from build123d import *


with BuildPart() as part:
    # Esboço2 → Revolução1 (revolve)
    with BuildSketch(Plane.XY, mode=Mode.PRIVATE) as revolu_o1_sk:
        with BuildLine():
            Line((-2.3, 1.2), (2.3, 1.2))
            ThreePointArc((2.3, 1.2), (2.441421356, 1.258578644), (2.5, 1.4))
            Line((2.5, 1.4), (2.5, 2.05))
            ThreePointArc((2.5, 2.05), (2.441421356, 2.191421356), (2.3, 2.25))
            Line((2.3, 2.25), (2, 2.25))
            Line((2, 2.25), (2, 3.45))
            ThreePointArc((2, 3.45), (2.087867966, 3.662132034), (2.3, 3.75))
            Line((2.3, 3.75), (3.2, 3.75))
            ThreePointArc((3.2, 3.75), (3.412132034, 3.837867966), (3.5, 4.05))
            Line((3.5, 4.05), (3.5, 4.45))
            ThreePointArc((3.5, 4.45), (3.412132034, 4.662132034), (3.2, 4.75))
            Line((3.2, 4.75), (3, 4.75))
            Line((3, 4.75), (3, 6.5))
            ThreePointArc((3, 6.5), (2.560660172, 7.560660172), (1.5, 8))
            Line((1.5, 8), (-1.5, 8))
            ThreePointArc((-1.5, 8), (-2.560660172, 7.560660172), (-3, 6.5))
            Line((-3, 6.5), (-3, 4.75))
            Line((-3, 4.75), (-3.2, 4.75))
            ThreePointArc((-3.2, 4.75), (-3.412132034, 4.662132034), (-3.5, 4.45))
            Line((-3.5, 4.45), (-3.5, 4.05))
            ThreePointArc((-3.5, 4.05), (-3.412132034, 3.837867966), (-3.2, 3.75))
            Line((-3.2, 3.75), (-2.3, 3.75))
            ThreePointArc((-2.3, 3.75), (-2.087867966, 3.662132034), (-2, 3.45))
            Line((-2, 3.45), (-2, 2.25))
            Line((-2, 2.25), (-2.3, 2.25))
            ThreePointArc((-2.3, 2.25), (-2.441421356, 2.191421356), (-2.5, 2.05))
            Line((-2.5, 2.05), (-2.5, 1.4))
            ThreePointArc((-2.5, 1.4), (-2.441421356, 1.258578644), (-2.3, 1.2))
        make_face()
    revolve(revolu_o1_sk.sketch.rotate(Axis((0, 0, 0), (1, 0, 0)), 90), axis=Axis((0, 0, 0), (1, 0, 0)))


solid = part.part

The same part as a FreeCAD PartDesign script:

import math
import FreeCAD as App
import Part
import Sketcher
from FreeCAD import Vector

doc = App.newDocument("Part")
params = doc.addObject("Spreadsheet::Sheet", "Params")
for row, (alias, value) in enumerate([
    ("sketch1_radius", "0.2 mm"),
    ("sketch1_radius2", "0.3 mm"),
    ("sketch1_radius3", "1.5 mm"),
    ("sketch1_width", "3 mm"),
    ("sketch1_width2", "4.6 mm"),
    ("revolution_angle", "360 deg"),
], start=1):
    params.set(f"A{row}", alias)
    params.set(f"B{row}", "=" + value)
    params.setAlias(f"B{row}", alias)

body = doc.addObject("PartDesign::Body", "Body")

# Sketch on XY plane
sketch1 = body.newObject("Sketcher::SketchObject", "Sketch")
sketch1.AttachmentSupport = (doc.getObject("XY_Plane"), [""])
sketch1.MapMode = "FlatFace"
sketch1.addGeometry([
    Part.LineSegment(Vector(-2.3, 1.2, 0), Vector(2.3, 1.2, 0)),  # 0
    Part.ArcOfCircle(Part.Circle(Vector(2.3, 1.4, 0), Vector(0, 0, 1), 0.2), math.radians(-90), math.radians(0)),  # 1
    Part.LineSegment(Vector(2.5, 1.4, 0), Vector(2.5, 2.05, 0)),  # 2
    Part.ArcOfCircle(Part.Circle(Vector(2.3, 2.05, 0), Vector(0, 0, 1), 0.2), math.radians(0), math.radians(90)),  # 3
    Part.LineSegment(Vector(2.3, 2.25, 0), Vector(2, 2.25, 0)),  # 4
    Part.LineSegment(Vector(2, 2.25, 0), Vector(2, 3.45, 0)),  # 5
    Part.ArcOfCircle(Part.Circle(Vector(2.3, 3.45, 0), Vector(0, 0, 1), 0.3), math.radians(90), math.radians(180)),  # 6
    Part.LineSegment(Vector(2.3, 3.75, 0), Vector(3.2, 3.75, 0)),  # 7
    Part.ArcOfCircle(Part.Circle(Vector(3.2, 4.05, 0), Vector(0, 0, 1), 0.3), math.radians(-90), math.radians(0)),  # 8
    Part.LineSegment(Vector(3.5, 4.05, 0), Vector(3.5, 4.45, 0)),  # 9
    Part.ArcOfCircle(Part.Circle(Vector(3.2, 4.45, 0), Vector(0, 0, 1), 0.3), math.radians(0), math.radians(90)),  # 10
    Part.LineSegment(Vector(3.2, 4.75, 0), Vector(3, 4.75, 0)),  # 11
    Part.LineSegment(Vector(3, 4.75, 0), Vector(3, 6.5, 0)),  # 12
    Part.ArcOfCircle(Part.Circle(Vector(1.5, 6.5, 0), Vector(0, 0, 1), 1.5), math.radians(0), math.radians(90)),  # 13
    Part.LineSegment(Vector(1.5, 8, 0), Vector(-1.5, 8, 0)),  # 14
    Part.ArcOfCircle(Part.Circle(Vector(-1.5, 6.5, 0), Vector(0, 0, 1), 1.5), math.radians(90), math.radians(180)),  # 15
    Part.LineSegment(Vector(-3, 6.5, 0), Vector(-3, 4.75, 0)),  # 16
    Part.LineSegment(Vector(-3, 4.75, 0), Vector(-3.2, 4.75, 0)),  # 17
    Part.ArcOfCircle(Part.Circle(Vector(-3.2, 4.45, 0), Vector(0, 0, 1), 0.3), math.radians(90), math.radians(180)),  # 18
    Part.LineSegment(Vector(-3.5, 4.45, 0), Vector(-3.5, 4.05, 0)),  # 19
    Part.ArcOfCircle(Part.Circle(Vector(-3.2, 4.05, 0), Vector(0, 0, 1), 0.3), math.radians(-180), math.radians(-90)),  # 20
    Part.LineSegment(Vector(-3.2, 3.75, 0), Vector(-2.3, 3.75, 0)),  # 21
    Part.ArcOfCircle(Part.Circle(Vector(-2.3, 3.45, 0), Vector(0, 0, 1), 0.3), math.radians(0), math.radians(90)),  # 22
    Part.LineSegment(Vector(-2, 3.45, 0), Vector(-2, 2.25, 0)),  # 23
    Part.LineSegment(Vector(-2, 2.25, 0), Vector(-2.3, 2.25, 0)),  # 24
    Part.ArcOfCircle(Part.Circle(Vector(-2.3, 2.05, 0), Vector(0, 0, 1), 0.2), math.radians(90), math.radians(180)),  # 25
    Part.LineSegment(Vector(-2.5, 2.05, 0), Vector(-2.5, 1.4, 0)),  # 26
    Part.ArcOfCircle(Part.Circle(Vector(-2.3, 1.4, 0), Vector(0, 0, 1), 0.2), math.radians(-180), math.radians(-90)),  # 27
], False)
sketch1.addConstraint([
    Sketcher.Constraint("Tangent", 0, 2, 1, 1),
    Sketcher.Constraint("Tangent", 1, 2, 2, 1),
    Sketcher.Constraint("Tangent", 2, 2, 3, 1),
    Sketcher.Constraint("Tangent", 3, 2, 4, 1),
    Sketcher.Constraint("Coincident", 4, 2, 5, 1),
    Sketcher.Constraint("Tangent", 5, 2, 6, 2),
    Sketcher.Constraint("Tangent", 6, 1, 7, 1),
    Sketcher.Constraint("Tangent", 7, 2, 8, 1),
    Sketcher.Constraint("Tangent", 8, 2, 9, 1),
    Sketcher.Constraint("Tangent", 9, 2, 10, 1),
    Sketcher.Constraint("Tangent", 10, 2, 11, 1),
    Sketcher.Constraint("Coincident", 11, 2, 12, 1),
    Sketcher.Constraint("Tangent", 12, 2, 13, 1),
    Sketcher.Constraint("Tangent", 13, 2, 14, 1),
    Sketcher.Constraint("Tangent", 14, 2, 15, 1),
    Sketcher.Constraint("Tangent", 15, 2, 16, 1),
    Sketcher.Constraint("Coincident", 16, 2, 17, 1),
    Sketcher.Constraint("Tangent", 17, 2, 18, 1),
    Sketcher.Constraint("Tangent", 18, 2, 19, 1),
    Sketcher.Constraint("Tangent", 19, 2, 20, 1),
    Sketcher.Constraint("Tangent", 20, 2, 21, 1),
    Sketcher.Constraint("Tangent", 21, 2, 22, 2),
    Sketcher.Constraint("Tangent", 22, 1, 23, 1),
    Sketcher.Constraint("Coincident", 23, 2, 24, 1),
    Sketcher.Constraint("Tangent", 24, 2, 25, 1),
    Sketcher.Constraint("Tangent", 25, 2, 26, 1),
    Sketcher.Constraint("Tangent", 26, 2, 27, 1),
    Sketcher.Constraint("Tangent", 27, 2, 0, 1),
    Sketcher.Constraint("Horizontal", 0),
    Sketcher.Constraint("Vertical", 2),
    Sketcher.Constraint("Horizontal", 4),
    Sketcher.Constraint("Vertical", 5),
    Sketcher.Constraint("Horizontal", 7),
    Sketcher.Constraint("Vertical", 9),
    Sketcher.Constraint("Horizontal", 11),
    Sketcher.Constraint("Vertical", 12),
    Sketcher.Constraint("Horizontal", 14),
    Sketcher.Constraint("Vertical", 16),
    Sketcher.Constraint("Horizontal", 17),
    Sketcher.Constraint("Vertical", 19),
    Sketcher.Constraint("Horizontal", 21),
    Sketcher.Constraint("Vertical", 23),
    Sketcher.Constraint("Horizontal", 24),
    Sketcher.Constraint("Vertical", 26),
    Sketcher.Constraint("Equal", 1, 3),
    Sketcher.Constraint("Equal", 6, 8),
    Sketcher.Constraint("Equal", 8, 10),
    Sketcher.Constraint("Equal", 13, 15),
    Sketcher.Constraint("Equal", 10, 18),
    Sketcher.Constraint("Equal", 18, 20),
    Sketcher.Constraint("Equal", 20, 22),
    Sketcher.Constraint("Equal", 3, 25),
    Sketcher.Constraint("Equal", 25, 27),
    Sketcher.Constraint("Symmetric", 10, 3, 18, 3, -2),
    Sketcher.Constraint("Symmetric", 6, 3, 22, 3, -2),
    Sketcher.Constraint("Symmetric", 3, 3, 25, 3, -2),
    Sketcher.Constraint("Vertical", 3, 3, 6, 3),
    Sketcher.Constraint("Equal", 11, 17),
    Sketcher.Constraint("Radius", 1, 0.2),
    Sketcher.Constraint("Radius", 6, 0.3),
    Sketcher.Constraint("Radius", 13, 1.5),
    Sketcher.Constraint("DistanceX", 14, 2, 14, 1, 3.0),
    Sketcher.Constraint("DistanceX", 0, 1, 0, 2, 4.6),
    Sketcher.Constraint("DistanceX", 7, 1, 7, 2, 0.9),
    Sketcher.Constraint("DistanceY", 5, 1, 5, 2, 1.2),
    Sketcher.Constraint("DistanceY", 9, 1, 9, 2, 0.4),
    Sketcher.Constraint("DistanceY", -1, 1, 13, 2, 8.0),
    Sketcher.Constraint("DistanceY", 2, 1, 2, 2, 0.65),
    Sketcher.Constraint("DistanceY", 12, 1, 12, 2, 1.75),
])
sketch1.setExpression("Constraints[58]", "Params.sketch1_radius")
sketch1.setExpression("Constraints[59]", "Params.sketch1_radius2")
sketch1.setExpression("Constraints[60]", "Params.sketch1_radius3")
sketch1.setExpression("Constraints[61]", "Params.sketch1_width")
sketch1.setExpression("Constraints[62]", "Params.sketch1_width2")
revolution = body.newObject("PartDesign::Revolution", "Revolution")
revolution.Profile = sketch1
revolution.ReferenceAxis = (sketch1, ["H_Axis"])
revolution.setExpression("Angle", "Params.revolution_angle")

doc.recompute()
